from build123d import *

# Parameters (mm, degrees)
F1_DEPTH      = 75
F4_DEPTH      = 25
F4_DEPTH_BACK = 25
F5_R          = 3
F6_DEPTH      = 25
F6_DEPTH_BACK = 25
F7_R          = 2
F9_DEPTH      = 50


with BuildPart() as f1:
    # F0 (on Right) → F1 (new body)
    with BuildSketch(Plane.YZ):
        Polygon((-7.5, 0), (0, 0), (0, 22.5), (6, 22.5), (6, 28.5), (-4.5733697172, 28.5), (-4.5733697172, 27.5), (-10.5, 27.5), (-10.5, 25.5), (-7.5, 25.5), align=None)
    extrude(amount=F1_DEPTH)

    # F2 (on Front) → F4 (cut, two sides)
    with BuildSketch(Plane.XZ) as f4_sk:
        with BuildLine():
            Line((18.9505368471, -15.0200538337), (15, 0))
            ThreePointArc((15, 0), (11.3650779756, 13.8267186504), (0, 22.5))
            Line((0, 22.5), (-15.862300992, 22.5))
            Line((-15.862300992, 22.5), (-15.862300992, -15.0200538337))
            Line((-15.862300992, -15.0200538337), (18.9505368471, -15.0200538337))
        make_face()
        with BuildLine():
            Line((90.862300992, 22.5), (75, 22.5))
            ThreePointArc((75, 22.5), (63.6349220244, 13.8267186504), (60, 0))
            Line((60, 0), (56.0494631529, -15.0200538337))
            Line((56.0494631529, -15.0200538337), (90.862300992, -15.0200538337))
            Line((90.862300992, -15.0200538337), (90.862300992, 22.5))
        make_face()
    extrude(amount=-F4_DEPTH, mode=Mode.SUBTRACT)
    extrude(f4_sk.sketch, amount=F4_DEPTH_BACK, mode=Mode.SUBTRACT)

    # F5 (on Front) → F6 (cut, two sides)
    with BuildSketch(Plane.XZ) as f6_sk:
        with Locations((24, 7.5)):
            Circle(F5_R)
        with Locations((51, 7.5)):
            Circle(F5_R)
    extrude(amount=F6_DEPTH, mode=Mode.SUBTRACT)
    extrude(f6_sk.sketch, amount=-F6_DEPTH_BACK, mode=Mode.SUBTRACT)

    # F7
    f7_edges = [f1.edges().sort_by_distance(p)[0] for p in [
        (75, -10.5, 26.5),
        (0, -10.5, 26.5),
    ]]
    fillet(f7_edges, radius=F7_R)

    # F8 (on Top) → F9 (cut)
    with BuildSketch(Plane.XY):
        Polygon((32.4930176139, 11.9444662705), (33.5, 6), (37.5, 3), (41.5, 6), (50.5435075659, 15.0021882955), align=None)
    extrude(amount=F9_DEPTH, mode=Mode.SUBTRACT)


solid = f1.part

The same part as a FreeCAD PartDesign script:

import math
import FreeCAD as App
import Part
import Sketcher
from FreeCAD import Vector


def edges_at(feature, points):
    """Names of the edges that pass closest to the given points."""
    edges = feature.Shape.Edges
    near = lambda p: min(range(len(edges)), key=lambda i: edges[i].distToShape(Part.Vertex(*p))[0])
    return sorted({f"Edge{near(p) + 1}" for p in points})

doc = App.newDocument("Part")
body = doc.addObject("PartDesign::Body", "Body")

# Sketch on YZ plane
sketch1 = body.newObject("Sketcher::SketchObject", "Sketch")
sketch1.AttachmentSupport = (doc.getObject("YZ_Plane"), [""])
sketch1.MapMode = "FlatFace"
sketch1.addGeometry([
    Part.LineSegment(Vector(-7.5, 0, 0), Vector(0, 0, 0)),  # 0
    Part.LineSegment(Vector(0, 0, 0), Vector(0, 22.5, 0)),  # 1
    Part.LineSegment(Vector(0, 22.5, 0), Vector(6, 22.5, 0)),  # 2
    Part.LineSegment(Vector(6, 22.5, 0), Vector(6, 28.5, 0)),  # 3
    Part.LineSegment(Vector(6, 28.5, 0), Vector(-4.6, 28.5, 0)),  # 4
    Part.LineSegment(Vector(-4.6, 28.5, 0), Vector(-4.6, 27.5, 0)),  # 5
    Part.LineSegment(Vector(-4.6, 27.5, 0), Vector(-10.5, 27.5, 0)),  # 6
    Part.LineSegment(Vector(-10.5, 27.5, 0), Vector(-10.5, 25.5, 0)),  # 7
    Part.LineSegment(Vector(-10.5, 25.5, 0), Vector(-7.5, 25.5, 0)),  # 8
    Part.LineSegment(Vector(-7.5, 25.5, 0), Vector(-7.5, 0, 0)),  # 9
], False)
sketch1.addConstraint([
    Sketcher.Constraint("Coincident", 0, 2, 1, 1),
    Sketcher.Constraint("Coincident", 1, 2, 2, 1),
    Sketcher.Constraint("Coincident", 2, 2, 3, 1),
    Sketcher.Constraint("Coincident", 3, 2, 4, 1),
    Sketcher.Constraint("Coincident", 4, 2, 5, 1),
    Sketcher.Constraint("Coincident", 5, 2, 6, 1),
    Sketcher.Constraint("Coincident", 6, 2, 7, 1),
    Sketcher.Constraint("Coincident", 7, 2, 8, 1),
    Sketcher.Constraint("Coincident", 8, 2, 9, 1),
    Sketcher.Constraint("Coincident", 9, 2, 0, 1),
    Sketcher.Constraint("Horizontal", 0),
    Sketcher.Constraint("Vertical", 1),
    Sketcher.Constraint("Horizontal", 2),
    Sketcher.Constraint("Vertical", 3),
    Sketcher.Constraint("Horizontal", 4),
    Sketcher.Constraint("Vertical", 5),
    Sketcher.Constraint("Horizontal", 6),
    Sketcher.Constraint("Vertical", 7),
    Sketcher.Constraint("Horizontal", 8),
    Sketcher.Constraint("Vertical", 9),
    Sketcher.Constraint("Coincident", 0, 2, -1, 1),
    Sketcher.Constraint("Equal", 2, 3),
    Sketcher.Constraint("DistanceX", 2, 1, 2, 2, 6.0),
    Sketcher.Constraint("DistanceX", 8, 1, 8, 2, 3.0),
    Sketcher.Constraint("DistanceY", 5, 2, 5, 1, 1.0),
    Sketcher.Constraint("DistanceY", 7, 2, 7, 1, 2.0),
    Sketcher.Constraint("DistanceX", 0, 1, 0, 2, 7.5),
    Sketcher.Constraint("DistanceY", 1, 1, 1, 2, 22.5),
    Sketcher.Constraint("DistanceX", 4, 2, 4, 1, 10.57337),
])
pad1 = body.newObject("PartDesign::Pad", "Pad")
pad1.Profile = sketch1
pad1.Length = 75

# Sketch on XZ plane
sketch2 = body.newObject("Sketcher::SketchObject", "Sketch001")
sketch2.AttachmentSupport = (doc.getObject("XZ_Plane"), [""])
sketch2.MapMode = "FlatFace"
sketch2.addGeometry([
    Part.LineSegment(Vector(19, -15, 0), Vector(15, 0, 0)),  # 0
    Part.ArcOfCircle(Part.Circle(Vector(-7, 2, 0), Vector(0, 0, 1), 22), math.radians(-4), math.radians(72)),  # 1
    Part.LineSegment(Vector(0, 22, 0), Vector(-16, 22, 0)),  # 2
    Part.LineSegment(Vector(-16, 22, 0), Vector(-16, -15, 0)),  # 3
    Part.LineSegment(Vector(-16, -15, 0), Vector(19, -15, 0)),  # 4
    Part.LineSegment(Vector(91, 22, 0), Vector(75, 22, 0)),  # 5
    Part.ArcOfCircle(Part.Circle(Vector(82, 2, 0), Vector(0, 0, 1), 22), math.radians(108), math.radians(184)),  # 6
    Part.LineSegment(Vector(60, 0, 0), Vector(56, -15, 0)),  # 7
    Part.LineSegment(Vector(56, -15, 0), Vector(91, -15, 0)),  # 8
    Part.LineSegment(Vector(91, -15, 0), Vector(91, 22, 0)),  # 9
], False)
sketch2.addConstraint([
    Sketcher.Constraint("Coincident", 0, 2, 1, 1),
    Sketcher.Constraint("Coincident", 1, 2, 2, 1),
    Sketcher.Constraint("Coincident", 2, 2, 3, 1),
    Sketcher.Constraint("Coincident", 3, 2, 4, 1),
    Sketcher.Constraint("Coincident", 4, 2, 0, 1),
    Sketcher.Constraint("Coincident", 5, 2, 6, 1),
    Sketcher.Constraint("Coincident", 6, 2, 7, 1),
    Sketcher.Constraint("Coincident", 7, 2, 8, 1),
    Sketcher.Constraint("Coincident", 8, 2, 9, 1),
    Sketcher.Constraint("Coincident", 9, 2, 5, 1),
    Sketcher.Constraint("Horizontal", 2),
    Sketcher.Constraint("Vertical", 3),
    Sketcher.Constraint("Horizontal", 4),
    Sketcher.Constraint("Horizontal", 5),
    Sketcher.Constraint("Horizontal", 8),
    Sketcher.Constraint("Vertical", 9),
    Sketcher.Constraint("Equal", 1, 6),
    Sketcher.Constraint("PointOnObject", 0, 2, -1),
    Sketcher.Constraint("PointOnObject", 1, 2, -2),
    Sketcher.Constraint("PointOnObject", 6, 2, -1),
    Sketcher.Constraint("Horizontal", 1, 3, 6, 3),
    Sketcher.Constraint("Horizontal", 2, 2, 5, 2),
    Sketcher.Constraint("Horizontal", 4, 2, 7, 2),
    Sketcher.Constraint("Equal", 2, 5),
    Sketcher.Constraint("Equal", 4, 8),
    Sketcher.Constraint("Radius", 1, 22.0),
    Sketcher.Constraint("DistanceX", -1, 1, 0, 2, 15.0),
    Sketcher.Constraint("DistanceX", -1, 1, 5, 2, 75.0),
    Sketcher.Constraint("DistanceY", -1, 1, 1, 2, 22.5),
    Sketcher.Constraint("DistanceX", 2, 2, 2, 1, 15.862301),
    Sketcher.Constraint("DistanceX", 4, 1, 4, 2, 34.812838),
    Sketcher.Constraint("DistanceY", 3, 2, 3, 1, 37.520054),
])
pocket1 = body.newObject("PartDesign::Pocket", "Pocket")
pocket1.Profile = sketch2
pocket1.Type = "ThroughAll"
pocket1.Midplane = True

# Sketch on XZ plane
sketch3 = body.newObject("Sketcher::SketchObject", "Sketch002")
sketch3.AttachmentSupport = (doc.getObject("XZ_Plane"), [""])
sketch3.MapMode = "FlatFace"
sketch3.addGeometry([
    Part.Circle(Vector(24, 7.5, 0), Vector(0, 0, 1), 3),
    Part.Circle(Vector(51, 7.5, 0), Vector(0, 0, 1), 3),
], False)
sketch3.addConstraint([
    Sketcher.Constraint("Equal", 0, 1),
    Sketcher.Constraint("Horizontal", 0, 3, 1, 3),
    Sketcher.Constraint("Diameter", 0, 6.0),
    Sketcher.Constraint("DistanceX", -1, 1, 0, 3, 24.0),
    Sketcher.Constraint("DistanceX", -1, 1, 1, 3, 51.0),
    Sketcher.Constraint("DistanceY", -1, 1, 0, 3, 7.5),
])
pocket2 = body.newObject("PartDesign::Pocket", "Pocket001")
pocket2.Profile = sketch3
pocket2.Type = "ThroughAll"
pocket2.Midplane = True
doc.recompute()

fillet = body.newObject("PartDesign::Fillet", "Fillet")
fillet.Base = (pocket2, edges_at(pocket2, [(75, -10.5, 26.5), (0, -10.5, 26.5)]))
fillet.Radius = 2

# Sketch on XY plane
sketch4 = body.newObject("Sketcher::SketchObject", "Sketch003")
sketch4.AttachmentSupport = (doc.getObject("XY_Plane"), [""])
sketch4.MapMode = "FlatFace"
sketch4.addGeometry([
    Part.LineSegment(Vector(32, 12, 0), Vector(34, 6, 0)),  # 0
    Part.LineSegment(Vector(34, 6, 0), Vector(38, 3, 0)),  # 1
    Part.LineSegment(Vector(38, 3, 0), Vector(42, 6, 0)),  # 2
    Part.LineSegment(Vector(42, 6, 0), Vector(51, 15, 0)),  # 3
    Part.LineSegment(Vector(51, 15, 0), Vector(32, 12, 0)),  # 4
], False)
sketch4.addConstraint([
    Sketcher.Constraint("Coincident", 0, 2, 1, 1),
    Sketcher.Constraint("Coincident", 1, 2, 2, 1),
    Sketcher.Constraint("Coincident", 2, 2, 3, 1),
    Sketcher.Constraint("Coincident", 3, 2, 4, 1),
    Sketcher.Constraint("Coincident", 4, 2, 0, 1),
    Sketcher.Constraint("Perpendicular", 0, 4),
    Sketcher.Constraint("Horizontal", 0, 2, 2, 2),
    Sketcher.Constraint("Equal", 1, 2),
    Sketcher.Constraint("Distance", 1, 5.0),
    Sketcher.Constraint("DistanceY", -1, 1, 0, 2, 6.0),
    Sketcher.Constraint("DistanceY", -1, 1, 1, 2, 3.0),
    Sketcher.Constraint("DistanceX", -1, 1, 0, 2, 33.5),
    Sketcher.Constraint("DistanceY", -1, 1, 3, 2, 15.002188),
    Sketcher.Constraint("DistanceX", 4, 2, 3, 2, 18.05049),
    Sketcher.Constraint("Distance", 0, 6.029154),
])
pocket3 = body.newObject("PartDesign::Pocket", "Pocket002")
pocket3.Profile = sketch4
pocket3.Length = 50
pocket3.Reversed = True

doc.recompute()
